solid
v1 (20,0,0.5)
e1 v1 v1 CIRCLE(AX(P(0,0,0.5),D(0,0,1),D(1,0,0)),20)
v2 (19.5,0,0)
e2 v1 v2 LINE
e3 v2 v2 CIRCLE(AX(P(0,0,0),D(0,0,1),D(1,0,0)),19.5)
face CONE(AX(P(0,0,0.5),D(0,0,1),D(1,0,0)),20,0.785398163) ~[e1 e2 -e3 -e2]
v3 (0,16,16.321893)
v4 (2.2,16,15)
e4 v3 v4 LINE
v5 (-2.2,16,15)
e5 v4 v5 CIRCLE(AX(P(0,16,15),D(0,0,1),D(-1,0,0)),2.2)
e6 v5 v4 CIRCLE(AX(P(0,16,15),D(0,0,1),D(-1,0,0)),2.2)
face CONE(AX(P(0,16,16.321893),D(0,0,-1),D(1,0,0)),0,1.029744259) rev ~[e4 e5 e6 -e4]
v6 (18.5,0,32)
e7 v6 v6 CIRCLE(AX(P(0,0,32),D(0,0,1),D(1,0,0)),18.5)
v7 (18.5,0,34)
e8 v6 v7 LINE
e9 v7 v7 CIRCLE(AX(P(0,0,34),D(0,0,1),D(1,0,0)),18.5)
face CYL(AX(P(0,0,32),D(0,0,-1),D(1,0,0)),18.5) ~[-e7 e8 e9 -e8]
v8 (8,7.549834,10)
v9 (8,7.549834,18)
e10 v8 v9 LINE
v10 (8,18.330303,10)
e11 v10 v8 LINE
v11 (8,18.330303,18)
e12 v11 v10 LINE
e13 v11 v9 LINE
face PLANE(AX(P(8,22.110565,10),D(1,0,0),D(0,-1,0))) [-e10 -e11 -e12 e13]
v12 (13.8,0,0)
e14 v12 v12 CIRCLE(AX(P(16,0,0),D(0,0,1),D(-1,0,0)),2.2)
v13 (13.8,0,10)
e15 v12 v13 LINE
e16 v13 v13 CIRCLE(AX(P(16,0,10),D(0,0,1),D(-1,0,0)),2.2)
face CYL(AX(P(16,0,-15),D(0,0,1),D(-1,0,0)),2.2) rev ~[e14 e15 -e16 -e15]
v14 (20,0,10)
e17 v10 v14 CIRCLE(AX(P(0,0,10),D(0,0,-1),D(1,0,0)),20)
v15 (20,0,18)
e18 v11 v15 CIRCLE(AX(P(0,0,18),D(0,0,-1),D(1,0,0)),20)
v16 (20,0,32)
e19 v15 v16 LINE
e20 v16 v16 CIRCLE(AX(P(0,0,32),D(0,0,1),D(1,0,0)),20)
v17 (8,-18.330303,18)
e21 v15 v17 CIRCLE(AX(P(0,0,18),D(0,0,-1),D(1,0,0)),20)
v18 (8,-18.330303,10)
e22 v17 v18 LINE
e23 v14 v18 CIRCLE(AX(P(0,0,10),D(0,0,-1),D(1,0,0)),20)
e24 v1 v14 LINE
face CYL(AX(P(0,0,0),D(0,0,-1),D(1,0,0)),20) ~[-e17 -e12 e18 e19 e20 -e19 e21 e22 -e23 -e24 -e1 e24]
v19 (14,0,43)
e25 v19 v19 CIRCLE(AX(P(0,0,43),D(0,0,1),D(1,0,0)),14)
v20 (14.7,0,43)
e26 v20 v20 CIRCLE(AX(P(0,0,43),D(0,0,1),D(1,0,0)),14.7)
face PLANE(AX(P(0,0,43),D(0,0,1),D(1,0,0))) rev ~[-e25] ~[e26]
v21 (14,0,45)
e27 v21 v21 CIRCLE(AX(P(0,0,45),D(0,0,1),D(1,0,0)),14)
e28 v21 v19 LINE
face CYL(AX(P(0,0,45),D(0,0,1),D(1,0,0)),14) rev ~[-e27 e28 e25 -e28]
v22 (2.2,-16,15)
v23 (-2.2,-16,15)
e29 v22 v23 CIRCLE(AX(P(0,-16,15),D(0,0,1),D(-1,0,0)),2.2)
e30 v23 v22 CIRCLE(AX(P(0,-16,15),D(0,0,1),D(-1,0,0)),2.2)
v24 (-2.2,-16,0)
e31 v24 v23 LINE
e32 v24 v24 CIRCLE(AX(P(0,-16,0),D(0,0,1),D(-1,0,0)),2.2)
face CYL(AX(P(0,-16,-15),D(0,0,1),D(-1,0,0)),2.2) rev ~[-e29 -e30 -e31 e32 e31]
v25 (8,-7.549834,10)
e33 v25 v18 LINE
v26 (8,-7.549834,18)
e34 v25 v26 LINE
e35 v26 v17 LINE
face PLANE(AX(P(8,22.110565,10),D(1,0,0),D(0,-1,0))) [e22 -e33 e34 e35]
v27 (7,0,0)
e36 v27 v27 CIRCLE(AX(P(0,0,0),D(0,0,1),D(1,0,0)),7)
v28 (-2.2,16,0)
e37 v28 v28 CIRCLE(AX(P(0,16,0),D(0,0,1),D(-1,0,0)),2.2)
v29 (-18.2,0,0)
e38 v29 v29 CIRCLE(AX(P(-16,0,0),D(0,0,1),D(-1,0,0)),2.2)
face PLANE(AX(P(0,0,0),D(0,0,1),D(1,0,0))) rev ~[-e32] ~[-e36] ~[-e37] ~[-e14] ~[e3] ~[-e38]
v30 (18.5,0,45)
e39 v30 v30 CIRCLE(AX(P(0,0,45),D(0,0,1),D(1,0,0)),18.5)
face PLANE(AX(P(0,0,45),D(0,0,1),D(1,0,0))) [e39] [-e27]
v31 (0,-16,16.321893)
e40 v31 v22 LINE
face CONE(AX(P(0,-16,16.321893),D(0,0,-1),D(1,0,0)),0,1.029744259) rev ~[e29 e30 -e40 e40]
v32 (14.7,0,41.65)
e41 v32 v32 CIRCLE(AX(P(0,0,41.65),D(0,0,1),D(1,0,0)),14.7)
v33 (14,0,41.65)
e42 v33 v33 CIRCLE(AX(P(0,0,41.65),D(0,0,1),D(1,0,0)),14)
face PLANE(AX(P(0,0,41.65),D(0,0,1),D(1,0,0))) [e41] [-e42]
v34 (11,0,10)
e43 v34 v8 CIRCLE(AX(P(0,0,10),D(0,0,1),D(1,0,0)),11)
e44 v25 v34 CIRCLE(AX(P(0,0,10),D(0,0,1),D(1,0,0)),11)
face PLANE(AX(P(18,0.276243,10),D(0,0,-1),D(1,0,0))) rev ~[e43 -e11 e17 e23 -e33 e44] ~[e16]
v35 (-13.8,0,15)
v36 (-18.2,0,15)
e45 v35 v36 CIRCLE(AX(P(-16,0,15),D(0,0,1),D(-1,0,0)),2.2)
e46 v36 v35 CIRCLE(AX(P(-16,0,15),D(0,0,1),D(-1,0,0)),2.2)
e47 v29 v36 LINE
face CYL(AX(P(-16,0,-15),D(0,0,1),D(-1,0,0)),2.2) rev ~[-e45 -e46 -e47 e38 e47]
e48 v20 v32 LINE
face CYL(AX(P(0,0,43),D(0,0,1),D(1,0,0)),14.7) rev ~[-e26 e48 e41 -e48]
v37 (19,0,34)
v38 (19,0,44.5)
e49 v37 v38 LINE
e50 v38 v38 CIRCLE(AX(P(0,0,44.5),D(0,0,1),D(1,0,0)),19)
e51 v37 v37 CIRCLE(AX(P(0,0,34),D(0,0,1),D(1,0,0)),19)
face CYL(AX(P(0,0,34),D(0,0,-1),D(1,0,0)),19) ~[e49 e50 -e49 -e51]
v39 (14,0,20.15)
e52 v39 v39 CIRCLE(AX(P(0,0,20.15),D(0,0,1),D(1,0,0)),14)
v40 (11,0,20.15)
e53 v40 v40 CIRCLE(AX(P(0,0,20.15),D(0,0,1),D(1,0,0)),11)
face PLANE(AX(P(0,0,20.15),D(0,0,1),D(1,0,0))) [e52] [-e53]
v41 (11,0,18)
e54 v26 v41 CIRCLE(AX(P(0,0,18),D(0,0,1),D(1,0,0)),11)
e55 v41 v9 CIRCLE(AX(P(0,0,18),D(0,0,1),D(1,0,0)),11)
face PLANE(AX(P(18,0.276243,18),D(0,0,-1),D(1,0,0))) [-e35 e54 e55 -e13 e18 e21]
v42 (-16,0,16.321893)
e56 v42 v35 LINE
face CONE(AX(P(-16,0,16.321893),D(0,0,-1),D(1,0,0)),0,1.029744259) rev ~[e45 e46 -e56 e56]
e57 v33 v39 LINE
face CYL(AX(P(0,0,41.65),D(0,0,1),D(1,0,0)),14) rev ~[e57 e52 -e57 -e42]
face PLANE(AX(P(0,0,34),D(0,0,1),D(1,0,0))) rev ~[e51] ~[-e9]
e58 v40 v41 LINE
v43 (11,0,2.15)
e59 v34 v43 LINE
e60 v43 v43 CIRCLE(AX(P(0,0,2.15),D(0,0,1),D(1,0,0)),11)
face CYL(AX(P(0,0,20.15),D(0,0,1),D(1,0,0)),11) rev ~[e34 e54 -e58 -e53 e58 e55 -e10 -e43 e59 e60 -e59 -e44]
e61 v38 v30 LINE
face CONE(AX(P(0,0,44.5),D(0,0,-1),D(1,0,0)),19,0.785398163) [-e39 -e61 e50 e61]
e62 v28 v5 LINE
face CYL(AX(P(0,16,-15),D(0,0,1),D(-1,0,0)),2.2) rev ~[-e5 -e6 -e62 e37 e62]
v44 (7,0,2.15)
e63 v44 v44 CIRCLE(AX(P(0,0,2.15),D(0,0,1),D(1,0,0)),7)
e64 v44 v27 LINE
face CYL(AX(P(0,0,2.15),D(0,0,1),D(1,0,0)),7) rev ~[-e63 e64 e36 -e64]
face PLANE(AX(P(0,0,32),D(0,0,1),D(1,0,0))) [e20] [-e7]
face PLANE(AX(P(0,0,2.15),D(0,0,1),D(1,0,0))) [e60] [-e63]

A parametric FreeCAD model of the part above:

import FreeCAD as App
import Part
import Sketcher
from FreeCAD import Vector


def edges_at(feature, points):
    """Names of the edges that pass closest to the given points."""
    edges = feature.Shape.Edges
    near = lambda p: min(range(len(edges)), key=lambda i: edges[i].distToShape(Part.Vertex(*p))[0])
    return sorted({f"Edge{near(p) + 1}" for p in points})

doc = App.newDocument("Part")
body = doc.addObject("PartDesign::Body", "Body")

sketch1 = body.newObject("Sketcher::SketchObject", "Sketch")
sketch1.AttachmentSupport = (doc.getObject("XY_Plane"), [""])
sketch1.MapMode = "FlatFace"
sketch1.addGeometry(Part.Circle(Vector(0, 0, 0), Vector(0, 0, 1), 20), False)
sketch1.addConstraint(Sketcher.Constraint("Coincident", 0, 3, -1, 1))
sketch1.addConstraint(Sketcher.Constraint("Diameter", 0, 40.0))
pad1 = body.newObject("PartDesign::Pad", "Pad")
pad1.Profile = sketch1
pad1.Length = 32

sketch2 = body.newObject("Sketcher::SketchObject", "Sketch001")
sketch2.AttachmentSupport = (doc.getObject("XY_Plane"), [""])
sketch2.MapMode = "FlatFace"
sketch2.AttachmentOffset = App.Placement(Vector(0, 0, 32), App.Rotation())
sketch2.addGeometry(Part.Circle(Vector(0, 0, 0), Vector(0, 0, 1), 18.5), False)
sketch2.addConstraint(Sketcher.Constraint("Coincident", 0, 3, -1, 1))
sketch2.addConstraint(Sketcher.Constraint("Diameter", 0, 37.0))
pad2 = body.newObject("PartDesign::Pad", "Pad001")
pad2.Profile = sketch2
pad2.Length = 2

sketch3 = body.newObject("Sketcher::SketchObject", "Sketch002")
sketch3.AttachmentSupport = (doc.getObject("XY_Plane"), [""])
sketch3.MapMode = "FlatFace"
sketch3.AttachmentOffset = App.Placement(Vector(0, 0, 34), App.Rotation())
sketch3.addGeometry(Part.Circle(Vector(0, 0, 0), Vector(0, 0, 1), 19), False)
sketch3.addConstraint(Sketcher.Constraint("Coincident", 0, 3, -1, 1))
sketch3.addConstraint(Sketcher.Constraint("Diameter", 0, 38.0))
pad3 = body.newObject("PartDesign::Pad", "Pad002")
pad3.Profile = sketch3
pad3.Length = 11

sketch4 = body.newObject("Sketcher::SketchObject", "Sketch003")
sketch4.AttachmentSupport = (doc.getObject("XY_Plane"), [""])
sketch4.MapMode = "FlatFace"
sketch4.AttachmentOffset = App.Placement(Vector(0, 0, 45), App.Rotation())
sketch4.addGeometry(Part.Circle(Vector(0, 0, 0), Vector(0, 0, 1), 14), False)
sketch4.addConstraint(Sketcher.Constraint("Coincident", 0, 3, -1, 1))
sketch4.addConstraint(Sketcher.Constraint("Diameter", 0, 28.0))
pocket1 = body.newObject("PartDesign::Pocket", "Pocket")
pocket1.Profile = sketch4
pocket1.Length = 2

sketch5 = body.newObject("Sketcher::SketchObject", "Sketch004")
sketch5.AttachmentSupport = (doc.getObject("XY_Plane"), [""])
sketch5.MapMode = "FlatFace"
sketch5.AttachmentOffset = App.Placement(Vector(0, 0, 43), App.Rotation())
sketch5.addGeometry(Part.Circle(Vector(0, 0, 0), Vector(0, 0, 1), 14.7), False)
sketch5.addConstraint(Sketcher.Constraint("Coincident", 0, 3, -1, 1))
sketch5.addConstraint(Sketcher.Constraint("Diameter", 0, 29.4))
pocket2 = body.newObject("PartDesign::Pocket", "Pocket001")
pocket2.Profile = sketch5
pocket2.Length = 1.35

sketch6 = body.newObject("Sketcher::SketchObject", "Sketch005")
sketch6.AttachmentSupport = (doc.getObject("XY_Plane"), [""])
sketch6.MapMode = "FlatFace"
sketch6.AttachmentOffset = App.Placement(Vector(0, 0, 41.65), App.Rotation())
sketch6.addGeometry(Part.Circle(Vector(0, 0, 0), Vector(0, 0, 1), 14), False)
sketch6.addConstraint(Sketcher.Constraint("Coincident", 0, 3, -1, 1))
sketch6.addConstraint(Sketcher.Constraint("Diameter", 0, 28.0))
pocket3 = body.newObject("PartDesign::Pocket", "Pocket002")
pocket3.Profile = sketch6
pocket3.Length = 21.5

sketch7 = body.newObject("Sketcher::SketchObject", "Sketch006")
sketch7.AttachmentSupport = (doc.getObject("XY_Plane"), [""])
sketch7.MapMode = "FlatFace"
sketch7.AttachmentOffset = App.Placement(Vector(0, 0, 20.15), App.Rotation())
sketch7.addGeometry(Part.Circle(Vector(0, 0, 0), Vector(0, 0, 1), 11), False)
sketch7.addConstraint(Sketcher.Constraint("Coincident", 0, 3, -1, 1))
sketch7.addConstraint(Sketcher.Constraint("Diameter", 0, 22.0))
pocket4 = body.newObject("PartDesign::Pocket", "Pocket003")
pocket4.Profile = sketch7
pocket4.Length = 18

sketch8 = body.newObject("Sketcher::SketchObject", "Sketch007")
sketch8.AttachmentSupport = (doc.getObject("XY_Plane"), [""])
sketch8.MapMode = "FlatFace"
sketch8.AttachmentOffset = App.Placement(Vector(0, 0, 2.15), App.Rotation())
sketch8.addGeometry(Part.Circle(Vector(0, 0, 0), Vector(0, 0, 1), 7), False)
sketch8.addConstraint(Sketcher.Constraint("Coincident", 0, 3, -1, 1))
sketch8.addConstraint(Sketcher.Constraint("Diameter", 0, 14.0))
pocket5 = body.newObject("PartDesign::Pocket", "Pocket004")
pocket5.Profile = sketch8
pocket5.Length = 25

sketch9 = body.newObject("Sketcher::SketchObject", "Sketch008")
sketch9.AttachmentSupport = (doc.getObject("XY_Plane"), [""])
sketch9.MapMode = "FlatFace"
sketch9.addGeometry(Part.Circle(Vector(-16, 0, 0), Vector(0, 0, 1), 2.2), False)
sketch9.addGeometry(Part.Circle(Vector(0, -16, 0), Vector(0, 0, 1), 2.2), False)
sketch9.addGeometry(Part.Circle(Vector(16, 0, 0), Vector(0, 0, 1), 2.2), False)
sketch9.addGeometry(Part.Circle(Vector(0, 16, 0), Vector(0, 0, 1), 2.2), False)
sketch9.addConstraint(Sketcher.Constraint("Equal", 0, 1))
sketch9.addConstraint(Sketcher.Constraint("Equal", 1, 2))
sketch9.addConstraint(Sketcher.Constraint("Equal", 2, 3))
sketch9.addConstraint(Sketcher.Constraint("Symmetric", 0, 3, 2, 3, -1, 1))
sketch9.addConstraint(Sketcher.Constraint("Symmetric", 1, 3, 3, 3, -1, 1))
sketch9.addConstraint(Sketcher.Constraint("PointOnObject", 0, 3, -1))
sketch9.addConstraint(Sketcher.Constraint("PointOnObject", 1, 3, -2))
sketch9.addConstraint(Sketcher.Constraint("Diameter", 0, 4.4))
sketch9.addConstraint(Sketcher.Constraint("DistanceX", 0, 3, -1, 1, 16.0))
sketch9.addConstraint(Sketcher.Constraint("DistanceY", 1, 3, -1, 1, 16.0))
doc.recompute()
hole = body.newObject("PartDesign::Hole", "Hole")
hole.Profile = sketch9
hole.ThreadType = "None"
hole.Diameter = 4.4
hole.DepthType = "Dimension"
hole.Depth = 15
hole.DrillPoint = "Angled"
hole.DrillPointAngle = 118
hole.Reversed = True

sketch10 = body.newObject("Sketcher::SketchObject", "Sketch009")
sketch10.AttachmentSupport = (doc.getObject("XY_Plane"), [""])
sketch10.MapMode = "FlatFace"
sketch10.AttachmentOffset = App.Placement(Vector(0, 0, 10), App.Rotation())
sketch10.addGeometry(Part.LineSegment(Vector(8, -21.558078, 0), Vector(8, 22.110565, 0)), False)
sketch10.addGeometry(Part.LineSegment(Vector(8, 22.110565, 0), Vector(28, 22.110565, 0)), False)
sketch10.addGeometry(Part.LineSegment(Vector(28, 22.110565, 0), Vector(28, -21.558078, 0)), False)
sketch10.addGeometry(Part.LineSegment(Vector(28, -21.558078, 0), Vector(8, -21.558078, 0)), False)
sketch10.addConstraint(Sketcher.Constraint("Coincident", 0, 2, 1, 1))
sketch10.addConstraint(Sketcher.Constraint("Coincident", 1, 2, 2, 1))
sketch10.addConstraint(Sketcher.Constraint("Coincident", 2, 2, 3, 1))
sketch10.addConstraint(Sketcher.Constraint("Coincident", 3, 2, 0, 1))
sketch10.addConstraint(Sketcher.Constraint("Vertical", 0))
sketch10.addConstraint(Sketcher.Constraint("Horizontal", 1))
sketch10.addConstraint(Sketcher.Constraint("Vertical", 2))
sketch10.addConstraint(Sketcher.Constraint("Horizontal", 3))
sketch10.addConstraint(Sketcher.Constraint("DistanceX", 1, 1, 1, 2, 20.0))
sketch10.addConstraint(Sketcher.Constraint("DistanceX", -1, 1, 0, 2, 8.0))
sketch10.addConstraint(Sketcher.Constraint("DistanceY", 0, 1, 0, 2, 43.668643))
sketch10.addConstraint(Sketcher.Constraint("DistanceY", 2, 2, -1, 1, 21.558078))
pocket6 = body.newObject("PartDesign::Pocket", "Pocket005")
pocket6.Profile = sketch10
pocket6.Length = 8
pocket6.Reversed = True
doc.recompute()

chamfer = body.newObject("PartDesign::Chamfer", "Chamfer")
chamfer.Base = (pocket6, edges_at(pocket6, [(-20, 0, 0), (-19, 0, 45)]))
chamfer.Size = 0.5

doc.recompute()
